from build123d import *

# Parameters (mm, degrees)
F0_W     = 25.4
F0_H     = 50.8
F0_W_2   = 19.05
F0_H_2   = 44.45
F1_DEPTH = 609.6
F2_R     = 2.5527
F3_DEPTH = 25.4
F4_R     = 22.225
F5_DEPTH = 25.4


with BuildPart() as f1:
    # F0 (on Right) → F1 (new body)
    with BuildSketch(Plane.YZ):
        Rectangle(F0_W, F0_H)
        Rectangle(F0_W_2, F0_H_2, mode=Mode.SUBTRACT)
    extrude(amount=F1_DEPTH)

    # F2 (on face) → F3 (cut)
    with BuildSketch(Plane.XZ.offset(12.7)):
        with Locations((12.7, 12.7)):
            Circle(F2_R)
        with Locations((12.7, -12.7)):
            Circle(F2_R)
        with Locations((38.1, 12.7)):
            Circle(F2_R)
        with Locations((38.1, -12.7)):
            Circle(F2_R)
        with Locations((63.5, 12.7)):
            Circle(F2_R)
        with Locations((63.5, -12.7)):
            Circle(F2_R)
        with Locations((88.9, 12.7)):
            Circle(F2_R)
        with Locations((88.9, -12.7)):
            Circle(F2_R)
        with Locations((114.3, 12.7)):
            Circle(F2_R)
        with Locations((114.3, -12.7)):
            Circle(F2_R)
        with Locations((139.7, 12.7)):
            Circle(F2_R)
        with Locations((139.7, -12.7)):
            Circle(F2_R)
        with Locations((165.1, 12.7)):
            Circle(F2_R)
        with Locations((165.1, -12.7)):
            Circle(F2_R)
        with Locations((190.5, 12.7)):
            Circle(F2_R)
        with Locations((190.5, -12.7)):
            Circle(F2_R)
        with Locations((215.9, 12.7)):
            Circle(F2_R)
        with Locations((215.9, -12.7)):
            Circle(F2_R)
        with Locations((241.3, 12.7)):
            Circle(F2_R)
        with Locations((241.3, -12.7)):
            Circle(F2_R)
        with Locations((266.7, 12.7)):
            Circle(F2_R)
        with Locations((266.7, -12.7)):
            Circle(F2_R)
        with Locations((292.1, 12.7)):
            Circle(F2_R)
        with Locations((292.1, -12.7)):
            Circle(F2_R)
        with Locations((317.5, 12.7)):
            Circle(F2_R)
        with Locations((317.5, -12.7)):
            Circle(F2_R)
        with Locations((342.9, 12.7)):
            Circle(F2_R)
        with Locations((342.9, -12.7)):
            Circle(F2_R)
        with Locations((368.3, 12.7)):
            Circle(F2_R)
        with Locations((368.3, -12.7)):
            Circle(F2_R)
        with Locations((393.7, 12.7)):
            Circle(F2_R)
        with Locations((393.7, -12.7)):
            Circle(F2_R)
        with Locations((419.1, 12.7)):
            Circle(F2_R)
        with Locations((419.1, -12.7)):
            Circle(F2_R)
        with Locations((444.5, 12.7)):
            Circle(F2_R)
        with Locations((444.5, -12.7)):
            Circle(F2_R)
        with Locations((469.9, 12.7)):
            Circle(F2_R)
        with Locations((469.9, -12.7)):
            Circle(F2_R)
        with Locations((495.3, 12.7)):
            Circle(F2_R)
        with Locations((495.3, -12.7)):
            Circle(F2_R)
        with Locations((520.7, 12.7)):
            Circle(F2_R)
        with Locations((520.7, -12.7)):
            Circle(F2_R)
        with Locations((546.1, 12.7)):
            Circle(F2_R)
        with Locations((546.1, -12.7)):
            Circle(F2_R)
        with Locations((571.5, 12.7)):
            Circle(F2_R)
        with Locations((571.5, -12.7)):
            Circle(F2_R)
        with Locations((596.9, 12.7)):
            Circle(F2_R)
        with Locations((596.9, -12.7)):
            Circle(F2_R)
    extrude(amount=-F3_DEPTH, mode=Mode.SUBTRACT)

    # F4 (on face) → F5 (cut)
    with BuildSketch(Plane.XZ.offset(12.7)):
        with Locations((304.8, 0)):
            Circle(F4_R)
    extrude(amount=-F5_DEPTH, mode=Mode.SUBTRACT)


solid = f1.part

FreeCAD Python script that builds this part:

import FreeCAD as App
import Part
import Sketcher

V = App.Vector
Q = App.Units.Quantity

doc = App.newDocument("Part")
params = doc.addObject("Spreadsheet::Sheet", "Params")
for row, (alias, value) in enumerate([
    ("sketch1_width", "1 in"),
    ("sketch1_height", "2 in"),
    ("sketch1_width2", "0.75 in"),
    ("sketch1_height2", "1.75 in"),
    ("pad1_length", "24 in"),
    ("sketch2_diameter", "0.201 in"),
    ("pocket1_length", "1 in"),
    ("sketch3_diameter", "1.75 in"),
    ("pocket2_length", "1 in"),
], start=1):
    params.set(f"A{row}", alias)
    params.set(f"B{row}", "=" + value)
    params.setAlias(f"B{row}", alias)

body = doc.addObject("PartDesign::Body", "Body")

# Sketch on YZ plane
sketch1 = doc.addObject("Sketcher::SketchObject", "Sketch")
body.addObject(sketch1)
sketch1.AttachmentSupport = (doc.YZ_Plane, [""])
sketch1.MapMode = "FlatFace"
sketch1.addGeometry([
    Part.LineSegment(V(-13, 25, 0), V(-13, -25, 0)),  # 0
    Part.LineSegment(V(-13, -25, 0), V(13, -25, 0)),  # 1
    Part.LineSegment(V(13, -25, 0), V(13, 25, 0)),  # 2
    Part.LineSegment(V(13, 25, 0), V(-13, 25, 0)),  # 3
    Part.LineSegment(V(10, -22, 0), V(-10, -22, 0)),  # 4
    Part.LineSegment(V(-10, -22, 0), V(-10, 22, 0)),  # 5
    Part.LineSegment(V(-10, 22, 0), V(10, 22, 0)),  # 6
    Part.LineSegment(V(10, 22, 0), V(10, -22, 0)),  # 7
], False)
sketch1.addConstraint([
    Sketcher.Constraint("Coincident", 0, 2, 1, 1),
    Sketcher.Constraint("Coincident", 1, 2, 2, 1),
    Sketcher.Constraint("Coincident", 2, 2, 3, 1),
    Sketcher.Constraint("Coincident", 3, 2, 0, 1),
    Sketcher.Constraint("Coincident", 4, 2, 5, 1),
    Sketcher.Constraint("Coincident", 5, 2, 6, 1),
    Sketcher.Constraint("Coincident", 6, 2, 7, 1),
    Sketcher.Constraint("Coincident", 7, 2, 4, 1),
    Sketcher.Constraint("Vertical", 0),
    Sketcher.Constraint("Horizontal", 1),
    Sketcher.Constraint("Vertical", 2),
    Sketcher.Constraint("Horizontal", 3),
    Sketcher.Constraint("Horizontal", 4),
    Sketcher.Constraint("Vertical", 5),
    Sketcher.Constraint("Horizontal", 6),
    Sketcher.Constraint("Vertical", 7),
    Sketcher.Constraint("Symmetric", 0, 2, 2, 2, -1, 1),
    Sketcher.Constraint("Symmetric", 4, 2, 6, 2, -1, 1),
    Sketcher.Constraint("DistanceX", 1, 1, 1, 2, Q("1 in")),
    Sketcher.Constraint("DistanceY", 0, 2, 0, 1, Q("2 in")),
    Sketcher.Constraint("DistanceX", 4, 2, 4, 1, Q("0.75 in")),
    Sketcher.Constraint("DistanceY", 5, 1, 5, 2, Q("1.75 in")),
])
sketch1.setExpression("Constraints[18]", "Params.sketch1_width")
sketch1.setExpression("Constraints[19]", "Params.sketch1_height")
sketch1.setExpression("Constraints[20]", "Params.sketch1_width2")
sketch1.setExpression("Constraints[21]", "Params.sketch1_height2")
pad1 = doc.addObject("PartDesign::Pad", "Pad")
body.addObject(pad1)
pad1.Profile = sketch1
pad1.setExpression("Length", "Params.pad1_length")

# Sketch on XZ plane
sketch2 = doc.addObject("Sketcher::SketchObject", "Sketch001")
body.addObject(sketch2)
sketch2.AttachmentSupport = (doc.XZ_Plane, [""])
sketch2.MapMode = "FlatFace"
sketch2.AttachmentOffset = App.Placement(V(0, 0, 0.5 * 25.4), App.Rotation())
sketch2.addGeometry([
    Part.Circle(V(12.7, 12.7, 0), V(0, 0, 1), 2.6),  # 0
    Part.Circle(V(12.7, -12.7, 0), V(0, 0, 1), 2.6),  # 1
    Part.Circle(V(38.1, 12.7, 0), V(0, 0, 1), 2.6),  # 2
    Part.Circle(V(38.1, -12.7, 0), V(0, 0, 1), 2.6),  # 3
    Part.Circle(V(63.5, 12.7, 0), V(0, 0, 1), 2.6),  # 4
    Part.Circle(V(63.5, -12.7, 0), V(0, 0, 1), 2.6),  # 5
    Part.Circle(V(88.9, 12.7, 0), V(0, 0, 1), 2.6),  # 6
    Part.Circle(V(88.9, -12.7, 0), V(0, 0, 1), 2.6),  # 7
    Part.Circle(V(114.3, 12.7, 0), V(0, 0, 1), 2.6),  # 8
    Part.Circle(V(114.3, -12.7, 0), V(0, 0, 1), 2.6),  # 9
    Part.Circle(V(139.7, 12.7, 0), V(0, 0, 1), 2.6),  # 10
    Part.Circle(V(139.7, -12.7, 0), V(0, 0, 1), 2.6),  # 11
    Part.Circle(V(165.1, 12.7, 0), V(0, 0, 1), 2.6),  # 12
    Part.Circle(V(165.1, -12.7, 0), V(0, 0, 1), 2.6),  # 13
    Part.Circle(V(190.5, 12.7, 0), V(0, 0, 1), 2.6),  # 14
    Part.Circle(V(190.5, -12.7, 0), V(0, 0, 1), 2.6),  # 15
    Part.Circle(V(215.9, 12.7, 0), V(0, 0, 1), 2.6),  # 16
    Part.Circle(V(215.9, -12.7, 0), V(0, 0, 1), 2.6),  # 17
    Part.Circle(V(241.3, 12.7, 0), V(0, 0, 1), 2.6),  # 18
    Part.Circle(V(241.3, -12.7, 0), V(0, 0, 1), 2.6),  # 19
    Part.Circle(V(266.7, 12.7, 0), V(0, 0, 1), 2.6),  # 20
    Part.Circle(V(266.7, -12.7, 0), V(0, 0, 1), 2.6),  # 21
    Part.Circle(V(292.1, 12.7, 0), V(0, 0, 1), 2.6),  # 22
    Part.Circle(V(292.1, -12.7, 0), V(0, 0, 1), 2.6),  # 23
    Part.Circle(V(317.5, 12.7, 0), V(0, 0, 1), 2.6),  # 24
    Part.Circle(V(317.5, -12.7, 0), V(0, 0, 1), 2.6),  # 25
    Part.Circle(V(342.9, 12.7, 0), V(0, 0, 1), 2.6),  # 26
    Part.Circle(V(342.9, -12.7, 0), V(0, 0, 1), 2.6),  # 27
    Part.Circle(V(368.3, 12.7, 0), V(0, 0, 1), 2.6),  # 28
    Part.Circle(V(368.3, -12.7, 0), V(0, 0, 1), 2.6),  # 29
    Part.Circle(V(393.7, 12.7, 0), V(0, 0, 1), 2.6),  # 30
    Part.Circle(V(393.7, -12.7, 0), V(0, 0, 1), 2.6),  # 31
    Part.Circle(V(419.1, 12.7, 0), V(0, 0, 1), 2.6),  # 32
    Part.Circle(V(419.1, -12.7, 0), V(0, 0, 1), 2.6),  # 33
    Part.Circle(V(444.5, 12.7, 0), V(0, 0, 1), 2.6),  # 34
    Part.Circle(V(444.5, -12.7, 0), V(0, 0, 1), 2.6),  # 35
    Part.Circle(V(469.9, 12.7, 0), V(0, 0, 1), 2.6),  # 36
    Part.Circle(V(469.9, -12.7, 0), V(0, 0, 1), 2.6),  # 37
    Part.Circle(V(495.3, 12.7, 0), V(0, 0, 1), 2.6),  # 38
    Part.Circle(V(495.3, -12.7, 0), V(0, 0, 1), 2.6),  # 39
    Part.Circle(V(520.7, 12.7, 0), V(0, 0, 1), 2.6),  # 40
    Part.Circle(V(520.7, -12.7, 0), V(0, 0, 1), 2.6),  # 41
    Part.Circle(V(546.1, 12.7, 0), V(0, 0, 1), 2.6),  # 42
    Part.Circle(V(546.1, -12.7, 0), V(0, 0, 1), 2.6),  # 43
    Part.Circle(V(571.5, 12.7, 0), V(0, 0, 1), 2.6),  # 44
    Part.Circle(V(571.5, -12.7, 0), V(0, 0, 1), 2.6),  # 45
    Part.Circle(V(596.9, 12.7, 0), V(0, 0, 1), 2.6),  # 46
    Part.Circle(V(596.9, -12.7, 0), V(0, 0, 1), 2.6),  # 47
], False)
sketch2.addConstraint([
    Sketcher.Constraint("Equal", 0, 1),
    Sketcher.Constraint("Equal", 1, 2),
    Sketcher.Constraint("Equal", 2, 3),
    Sketcher.Constraint("Equal", 3, 4),
    Sketcher.Constraint("Equal", 4, 5),
    Sketcher.Constraint("Equal", 5, 6),
    Sketcher.Constraint("Equal", 6, 7),
    Sketcher.Constraint("Equal", 7, 8),
    Sketcher.Constraint("Equal", 8, 9),
    Sketcher.Constraint("Equal", 9, 10),
    Sketcher.Constraint("Equal", 10, 11),
    Sketcher.Constraint("Equal", 11, 12),
    Sketcher.Constraint("Equal", 12, 13),
    Sketcher.Constraint("Equal", 13, 14),
    Sketcher.Constraint("Equal", 14, 15),
    Sketcher.Constraint("Equal", 15, 16),
    Sketcher.Constraint("Equal", 16, 17),
    Sketcher.Constraint("Equal", 17, 18),
    Sketcher.Constraint("Equal", 18, 19),
    Sketcher.Constraint("Equal", 19, 20),
    Sketcher.Constraint("Equal", 20, 21),
    Sketcher.Constraint("Equal", 21, 22),
    Sketcher.Constraint("Equal", 22, 23),
    Sketcher.Constraint("Equal", 23, 24),
    Sketcher.Constraint("Equal", 24, 25),
    Sketcher.Constraint("Equal", 25, 26),
    Sketcher.Constraint("Equal", 26, 27),
    Sketcher.Constraint("Equal", 27, 28),
    Sketcher.Constraint("Equal", 28, 29),
    Sketcher.Constraint("Equal", 29, 30),
    Sketcher.Constraint("Equal", 30, 31),
    Sketcher.Constraint("Equal", 31, 32),
    Sketcher.Constraint("Equal", 32, 33),
    Sketcher.Constraint("Equal", 33, 34),
    Sketcher.Constraint("Equal", 34, 35),
    Sketcher.Constraint("Equal", 35, 36),
    Sketcher.Constraint("Equal", 36, 37),
    Sketcher.Constraint("Equal", 37, 38),
    Sketcher.Constraint("Equal", 38, 39),
    Sketcher.Constraint("Equal", 39, 40),
    Sketcher.Constraint("Equal", 40, 41),
    Sketcher.Constraint("Equal", 41, 42),
    Sketcher.Constraint("Equal", 42, 43),
    Sketcher.Constraint("Equal", 43, 44),
    Sketcher.Constraint("Equal", 44, 45),
    Sketcher.Constraint("Equal", 45, 46),
    Sketcher.Constraint("Equal", 46, 47),
    Sketcher.Constraint("Symmetric", 0, 3, 1, 3, -1),
    Sketcher.Constraint("Symmetric", 2, 3, 3, 3, -1),
    Sketcher.Constraint("Symmetric", 4, 3, 5, 3, -1),
    Sketcher.Constraint("Symmetric", 6, 3, 7, 3, -1),
    Sketcher.Constraint("Symmetric", 8, 3, 9, 3, -1),
    Sketcher.Constraint("Symmetric", 10, 3, 11, 3, -1),
    Sketcher.Constraint("Symmetric", 12, 3, 13, 3, -1),
    Sketcher.Constraint("Symmetric", 14, 3, 15, 3, -1),
    Sketcher.Constraint("Symmetric", 16, 3, 17, 3, -1),
    Sketcher.Constraint("Symmetric", 18, 3, 19, 3, -1),
    Sketcher.Constraint("Symmetric", 20, 3, 21, 3, -1),
    Sketcher.Constraint("Symmetric", 22, 3, 23, 3, -1),
    Sketcher.Constraint("Symmetric", 24, 3, 25, 3, -1),
    Sketcher.Constraint("Symmetric", 26, 3, 27, 3, -1),
    Sketcher.Constraint("Symmetric", 28, 3, 29, 3, -1),
    Sketcher.Constraint("Symmetric", 30, 3, 31, 3, -1),
    Sketcher.Constraint("Symmetric", 32, 3, 33, 3, -1),
    Sketcher.Constraint("Symmetric", 34, 3, 35, 3, -1),
    Sketcher.Constraint("Symmetric", 36, 3, 37, 3, -1),
    Sketcher.Constraint("Symmetric", 38, 3, 39, 3, -1),
    Sketcher.Constraint("Symmetric", 40, 3, 41, 3, -1),
    Sketcher.Constraint("Symmetric", 42, 3, 43, 3, -1),
    Sketcher.Constraint("Symmetric", 44, 3, 45, 3, -1),
    Sketcher.Constraint("Symmetric", 46, 3, 47, 3, -1),
    Sketcher.Constraint("Horizontal", 0, 3, 2, 3),
    Sketcher.Constraint("Horizontal", 2, 3, 4, 3),
    Sketcher.Constraint("Horizontal", 4, 3, 6, 3),
    Sketcher.Constraint("Horizontal", 6, 3, 8, 3),
    Sketcher.Constraint("Horizontal", 8, 3, 10, 3),
    Sketcher.Constraint("Horizontal", 10, 3, 12, 3),
    Sketcher.Constraint("Horizontal", 12, 3, 14, 3),
    Sketcher.Constraint("Horizontal", 14, 3, 16, 3),
    Sketcher.Constraint("Horizontal", 16, 3, 18, 3),
    Sketcher.Constraint("Horizontal", 18, 3, 20, 3),
    Sketcher.Constraint("Horizontal", 20, 3, 22, 3),
    Sketcher.Constraint("Horizontal", 22, 3, 24, 3),
    Sketcher.Constraint("Horizontal", 24, 3, 26, 3),
    Sketcher.Constraint("Horizontal", 26, 3, 28, 3),
    Sketcher.Constraint("Horizontal", 28, 3, 30, 3),
    Sketcher.Constraint("Horizontal", 30, 3, 32, 3),
    Sketcher.Constraint("Horizontal", 32, 3, 34, 3),
    Sketcher.Constraint("Horizontal", 34, 3, 36, 3),
    Sketcher.Constraint("Horizontal", 36, 3, 38, 3),
    Sketcher.Constraint("Horizontal", 38, 3, 40, 3),
    Sketcher.Constraint("Horizontal", 40, 3, 42, 3),
    Sketcher.Constraint("Horizontal", 42, 3, 44, 3),
    Sketcher.Constraint("Horizontal", 44, 3, 46, 3),
    Sketcher.Constraint("Diameter", 0, Q("0.201 in")),
    Sketcher.Constraint("DistanceY", 1, 3, 0, 3, Q("1 in")),
    Sketcher.Constraint("DistanceX", 0, 3, 2, 3, Q("1 in")),
    Sketcher.Constraint("DistanceX", 2, 3, 4, 3, Q("1 in")),
    Sketcher.Constraint("DistanceX", 4, 3, 6, 3, Q("1 in")),
    Sketcher.Constraint("DistanceX", 6, 3, 8, 3, Q("1 in")),
    Sketcher.Constraint("DistanceX", 8, 3, 10, 3, Q("1 in")),
    Sketcher.Constraint("DistanceX", 10, 3, 12, 3, Q("1 in")),
    Sketcher.Constraint("DistanceX", 12, 3, 14, 3, Q("1 in")),
    Sketcher.Constraint("DistanceX", 14, 3, 16, 3, Q("1 in")),
    Sketcher.Constraint("DistanceX", 16, 3, 18, 3, Q("1 in")),
    Sketcher.Constraint("DistanceX", 18, 3, 20, 3, Q("1 in")),
    Sketcher.Constraint("DistanceX", 20, 3, 22, 3, Q("1 in")),
    Sketcher.Constraint("DistanceX", 22, 3, 24, 3, Q("1 in")),
    Sketcher.Constraint("DistanceX", 24, 3, 26, 3, Q("1 in")),
    Sketcher.Constraint("DistanceX", 26, 3, 28, 3, Q("1 in")),
    Sketcher.Constraint("DistanceX", 28, 3, 30, 3, Q("1 in")),
    Sketcher.Constraint("DistanceX", 30, 3, 32, 3, Q("1 in")),
    Sketcher.Constraint("DistanceX", 32, 3, 34, 3, Q("1 in")),
    Sketcher.Constraint("DistanceX", 34, 3, 36, 3, Q("1 in")),
    Sketcher.Constraint("DistanceX", 36, 3, 38, 3, Q("1 in")),
    Sketcher.Constraint("DistanceX", 38, 3, 40, 3, Q("1 in")),
    Sketcher.Constraint("DistanceX", 40, 3, 42, 3, Q("1 in")),
    Sketcher.Constraint("DistanceX", 42, 3, 44, 3, Q("1 in")),
    Sketcher.Constraint("DistanceX", 44, 3, 46, 3, Q("1 in")),
    Sketcher.Constraint("DistanceX", -1, 1, 0, 3, Q("0.5 in")),
])
sketch2.setExpression("Constraints[94]", "Params.sketch2_diameter")
pocket1 = doc.addObject("PartDesign::Pocket", "Pocket")
body.addObject(pocket1)
pocket1.Profile = sketch2
pocket1.setExpression("Length", "Params.pocket1_length")

# Sketch on XZ plane
sketch3 = doc.addObject("Sketcher::SketchObject", "Sketch002")
body.addObject(sketch3)
sketch3.AttachmentSupport = (doc.XZ_Plane, [""])
sketch3.MapMode = "FlatFace"
sketch3.AttachmentOffset = App.Placement(V(0, 0, 0.5 * 25.4), App.Rotation())
sketch3.addGeometry(Part.Circle(V(305, 0, 0), V(0, 0, 1), 22), False)
sketch3.addConstraint([
    Sketcher.Constraint("PointOnObject", 0, 3, -1),
    Sketcher.Constraint("Diameter", 0, Q("1.75 in")),
    Sketcher.Constraint("DistanceX", -1, 1, 0, 3, Q("12 in")),
])
sketch3.setExpression("Constraints[1]", "Params.sketch3_diameter")
pocket2 = doc.addObject("PartDesign::Pocket", "Pocket001")
body.addObject(pocket2)
pocket2.Profile = sketch3
pocket2.setExpression("Length", "Params.pocket2_length")

doc.recompute()
